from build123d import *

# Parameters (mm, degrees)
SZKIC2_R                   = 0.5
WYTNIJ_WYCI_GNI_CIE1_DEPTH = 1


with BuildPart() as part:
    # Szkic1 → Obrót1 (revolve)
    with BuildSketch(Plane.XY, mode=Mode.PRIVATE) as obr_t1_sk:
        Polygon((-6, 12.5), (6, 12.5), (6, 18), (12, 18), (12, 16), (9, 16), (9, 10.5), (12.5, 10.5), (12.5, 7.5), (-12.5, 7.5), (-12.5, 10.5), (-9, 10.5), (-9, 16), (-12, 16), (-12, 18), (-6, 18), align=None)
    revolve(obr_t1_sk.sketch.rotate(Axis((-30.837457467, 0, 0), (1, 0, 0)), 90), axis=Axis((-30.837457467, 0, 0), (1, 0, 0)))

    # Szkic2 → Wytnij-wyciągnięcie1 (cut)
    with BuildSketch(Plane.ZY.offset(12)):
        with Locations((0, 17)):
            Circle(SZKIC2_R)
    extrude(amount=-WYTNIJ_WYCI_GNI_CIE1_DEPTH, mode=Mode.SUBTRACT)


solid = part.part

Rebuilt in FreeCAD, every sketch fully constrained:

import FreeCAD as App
import Part
import Sketcher
from FreeCAD import Vector

doc = App.newDocument("Part")
body = doc.addObject("PartDesign::Body", "Body")

# Sketch on XY plane
sketch1 = body.newObject("Sketcher::SketchObject", "Sketch")
sketch1.AttachmentSupport = (doc.getObject("XY_Plane"), [""])
sketch1.MapMode = "FlatFace"
sketch1.addGeometry(Part.LineSegment(Vector(6, 12.5, 0), Vector(-6, 12.5, 0)), False)
sketch1.addGeometry(Part.LineSegment(Vector(-6, 12.5, 0), Vector(-6, 18, 0)), False)
sketch1.addGeometry(Part.LineSegment(Vector(-6, 18, 0), Vector(-12, 18, 0)), False)
sketch1.addGeometry(Part.LineSegment(Vector(-12, 18, 0), Vector(-12, 16, 0)), False)
sketch1.addGeometry(Part.LineSegment(Vector(-12, 16, 0), Vector(-9, 16, 0)), False)
sketch1.addGeometry(Part.LineSegment(Vector(-9, 16, 0), Vector(-9, 10.5, 0)), False)
sketch1.addGeometry(Part.LineSegment(Vector(-9, 10.5, 0), Vector(-12.5, 10.5, 0)), False)
sketch1.addGeometry(Part.LineSegment(Vector(-12.5, 10.5, 0), Vector(-12.5, 7.5, 0)), False)
sketch1.addGeometry(Part.LineSegment(Vector(-12.5, 7.5, 0), Vector(12.5, 7.5, 0)), False)
sketch1.addGeometry(Part.LineSegment(Vector(12.5, 7.5, 0), Vector(12.5, 10.5, 0)), False)
sketch1.addGeometry(Part.LineSegment(Vector(12.5, 10.5, 0), Vector(9, 10.5, 0)), False)
sketch1.addGeometry(Part.LineSegment(Vector(9, 10.5, 0), Vector(9, 16, 0)), False)
sketch1.addGeometry(Part.LineSegment(Vector(9, 16, 0), Vector(12, 16, 0)), False)
sketch1.addGeometry(Part.LineSegment(Vector(12, 16, 0), Vector(12, 18, 0)), False)
sketch1.addGeometry(Part.LineSegment(Vector(12, 18, 0), Vector(6, 18, 0)), False)
sketch1.addGeometry(Part.LineSegment(Vector(6, 18, 0), Vector(6, 12.5, 0)), False)
sketch1.addConstraint(Sketcher.Constraint("Coincident", 0, 2, 1, 1))
sketch1.addConstraint(Sketcher.Constraint("Coincident", 1, 2, 2, 1))
sketch1.addConstraint(Sketcher.Constraint("Coincident", 2, 2, 3, 1))
sketch1.addConstraint(Sketcher.Constraint("Coincident", 3, 2, 4, 1))
sketch1.addConstraint(Sketcher.Constraint("Coincident", 4, 2, 5, 1))
sketch1.addConstraint(Sketcher.Constraint("Coincident", 5, 2, 6, 1))
sketch1.addConstraint(Sketcher.Constraint("Coincident", 6, 2, 7, 1))
sketch1.addConstraint(Sketcher.Constraint("Coincident", 7, 2, 8, 1))
sketch1.addConstraint(Sketcher.Constraint("Coincident", 8, 2, 9, 1))
sketch1.addConstraint(Sketcher.Constraint("Coincident", 9, 2, 10, 1))
sketch1.addConstraint(Sketcher.Constraint("Coincident", 10, 2, 11, 1))
sketch1.addConstraint(Sketcher.Constraint("Coincident", 11, 2, 12, 1))
sketch1.addConstraint(Sketcher.Constraint("Coincident", 12, 2, 13, 1))
sketch1.addConstraint(Sketcher.Constraint("Coincident", 13, 2, 14, 1))
sketch1.addConstraint(Sketcher.Constraint("Coincident", 14, 2, 15, 1))
sketch1.addConstraint(Sketcher.Constraint("Coincident", 15, 2, 0, 1))
sketch1.addConstraint(Sketcher.Constraint("Horizontal", 0))
sketch1.addConstraint(Sketcher.Constraint("Vertical", 1))
sketch1.addConstraint(Sketcher.Constraint("Horizontal", 2))
sketch1.addConstraint(Sketcher.Constraint("Vertical", 3))
sketch1.addConstraint(Sketcher.Constraint("Horizontal", 4))
sketch1.addConstraint(Sketcher.Constraint("Vertical", 5))
sketch1.addConstraint(Sketcher.Constraint("Horizontal", 6))
sketch1.addConstraint(Sketcher.Constraint("Vertical", 7))
sketch1.addConstraint(Sketcher.Constraint("Horizontal", 8))
sketch1.addConstraint(Sketcher.Constraint("Vertical", 9))
sketch1.addConstraint(Sketcher.Constraint("Horizontal", 10))
sketch1.addConstraint(Sketcher.Constraint("Vertical", 11))
sketch1.addConstraint(Sketcher.Constraint("Horizontal", 12))
sketch1.addConstraint(Sketcher.Constraint("Vertical", 13))
sketch1.addConstraint(Sketcher.Constraint("Horizontal", 14))
sketch1.addConstraint(Sketcher.Constraint("Vertical", 15))
sketch1.addConstraint(Sketcher.Constraint("Symmetric", 6, 2, 9, 2, -2))
sketch1.addConstraint(Sketcher.Constraint("Symmetric", 4, 2, 11, 2, -2))
sketch1.addConstraint(Sketcher.Constraint("Symmetric", 2, 2, 13, 2, -2))
sketch1.addConstraint(Sketcher.Constraint("Equal", 2, 14))
sketch1.addConstraint(Sketcher.Constraint("Equal", 1, 5))
sketch1.addConstraint(Sketcher.Constraint("Equal", 12, 7))
sketch1.addConstraint(Sketcher.Constraint("DistanceX", 0, 2, 0, 1, 12.0))
sketch1.addConstraint(Sketcher.Constraint("DistanceX", 2, 2, 2, 1, 6.0))
sketch1.addConstraint(Sketcher.Constraint("DistanceX", 4, 1, 4, 2, 3.0))
sketch1.addConstraint(Sketcher.Constraint("DistanceX", 8, 1, 8, 2, 25.0))
sketch1.addConstraint(Sketcher.Constraint("DistanceY", 3, 2, 3, 1, 2.0))
sketch1.addConstraint(Sketcher.Constraint("DistanceY", 1, 1, 1, 2, 5.5))
sketch1.addConstraint(Sketcher.Constraint("DistanceY", -1, 1, 1, 2, 18.0))
revolution = body.newObject("PartDesign::Revolution", "Revolution")
revolution.Profile = sketch1
revolution.ReferenceAxis = (sketch1, ["H_Axis"])
revolution.Angle = 360

# Sketch on YZ plane
sketch2 = body.newObject("Sketcher::SketchObject", "Sketch001")
sketch2.AttachmentSupport = (doc.getObject("YZ_Plane"), [""])
sketch2.MapMode = "FlatFace"
sketch2.AttachmentOffset = App.Placement(Vector(0, 0, -12), App.Rotation())
sketch2.addGeometry(Part.Circle(Vector(17, 0, 0), Vector(0, 0, 1), 0.5), False)
sketch2.addConstraint(Sketcher.Constraint("PointOnObject", 0, 3, -1))
sketch2.addConstraint(Sketcher.Constraint("Diameter", 0, 1.0))
sketch2.addConstraint(Sketcher.Constraint("DistanceX", -1, 1, 0, 3, 17.0))
pocket1 = body.newObject("PartDesign::Pocket", "Pocket")
pocket1.Profile = sketch2
pocket1.Length = 1
pocket1.Reversed = True

doc.recompute()
